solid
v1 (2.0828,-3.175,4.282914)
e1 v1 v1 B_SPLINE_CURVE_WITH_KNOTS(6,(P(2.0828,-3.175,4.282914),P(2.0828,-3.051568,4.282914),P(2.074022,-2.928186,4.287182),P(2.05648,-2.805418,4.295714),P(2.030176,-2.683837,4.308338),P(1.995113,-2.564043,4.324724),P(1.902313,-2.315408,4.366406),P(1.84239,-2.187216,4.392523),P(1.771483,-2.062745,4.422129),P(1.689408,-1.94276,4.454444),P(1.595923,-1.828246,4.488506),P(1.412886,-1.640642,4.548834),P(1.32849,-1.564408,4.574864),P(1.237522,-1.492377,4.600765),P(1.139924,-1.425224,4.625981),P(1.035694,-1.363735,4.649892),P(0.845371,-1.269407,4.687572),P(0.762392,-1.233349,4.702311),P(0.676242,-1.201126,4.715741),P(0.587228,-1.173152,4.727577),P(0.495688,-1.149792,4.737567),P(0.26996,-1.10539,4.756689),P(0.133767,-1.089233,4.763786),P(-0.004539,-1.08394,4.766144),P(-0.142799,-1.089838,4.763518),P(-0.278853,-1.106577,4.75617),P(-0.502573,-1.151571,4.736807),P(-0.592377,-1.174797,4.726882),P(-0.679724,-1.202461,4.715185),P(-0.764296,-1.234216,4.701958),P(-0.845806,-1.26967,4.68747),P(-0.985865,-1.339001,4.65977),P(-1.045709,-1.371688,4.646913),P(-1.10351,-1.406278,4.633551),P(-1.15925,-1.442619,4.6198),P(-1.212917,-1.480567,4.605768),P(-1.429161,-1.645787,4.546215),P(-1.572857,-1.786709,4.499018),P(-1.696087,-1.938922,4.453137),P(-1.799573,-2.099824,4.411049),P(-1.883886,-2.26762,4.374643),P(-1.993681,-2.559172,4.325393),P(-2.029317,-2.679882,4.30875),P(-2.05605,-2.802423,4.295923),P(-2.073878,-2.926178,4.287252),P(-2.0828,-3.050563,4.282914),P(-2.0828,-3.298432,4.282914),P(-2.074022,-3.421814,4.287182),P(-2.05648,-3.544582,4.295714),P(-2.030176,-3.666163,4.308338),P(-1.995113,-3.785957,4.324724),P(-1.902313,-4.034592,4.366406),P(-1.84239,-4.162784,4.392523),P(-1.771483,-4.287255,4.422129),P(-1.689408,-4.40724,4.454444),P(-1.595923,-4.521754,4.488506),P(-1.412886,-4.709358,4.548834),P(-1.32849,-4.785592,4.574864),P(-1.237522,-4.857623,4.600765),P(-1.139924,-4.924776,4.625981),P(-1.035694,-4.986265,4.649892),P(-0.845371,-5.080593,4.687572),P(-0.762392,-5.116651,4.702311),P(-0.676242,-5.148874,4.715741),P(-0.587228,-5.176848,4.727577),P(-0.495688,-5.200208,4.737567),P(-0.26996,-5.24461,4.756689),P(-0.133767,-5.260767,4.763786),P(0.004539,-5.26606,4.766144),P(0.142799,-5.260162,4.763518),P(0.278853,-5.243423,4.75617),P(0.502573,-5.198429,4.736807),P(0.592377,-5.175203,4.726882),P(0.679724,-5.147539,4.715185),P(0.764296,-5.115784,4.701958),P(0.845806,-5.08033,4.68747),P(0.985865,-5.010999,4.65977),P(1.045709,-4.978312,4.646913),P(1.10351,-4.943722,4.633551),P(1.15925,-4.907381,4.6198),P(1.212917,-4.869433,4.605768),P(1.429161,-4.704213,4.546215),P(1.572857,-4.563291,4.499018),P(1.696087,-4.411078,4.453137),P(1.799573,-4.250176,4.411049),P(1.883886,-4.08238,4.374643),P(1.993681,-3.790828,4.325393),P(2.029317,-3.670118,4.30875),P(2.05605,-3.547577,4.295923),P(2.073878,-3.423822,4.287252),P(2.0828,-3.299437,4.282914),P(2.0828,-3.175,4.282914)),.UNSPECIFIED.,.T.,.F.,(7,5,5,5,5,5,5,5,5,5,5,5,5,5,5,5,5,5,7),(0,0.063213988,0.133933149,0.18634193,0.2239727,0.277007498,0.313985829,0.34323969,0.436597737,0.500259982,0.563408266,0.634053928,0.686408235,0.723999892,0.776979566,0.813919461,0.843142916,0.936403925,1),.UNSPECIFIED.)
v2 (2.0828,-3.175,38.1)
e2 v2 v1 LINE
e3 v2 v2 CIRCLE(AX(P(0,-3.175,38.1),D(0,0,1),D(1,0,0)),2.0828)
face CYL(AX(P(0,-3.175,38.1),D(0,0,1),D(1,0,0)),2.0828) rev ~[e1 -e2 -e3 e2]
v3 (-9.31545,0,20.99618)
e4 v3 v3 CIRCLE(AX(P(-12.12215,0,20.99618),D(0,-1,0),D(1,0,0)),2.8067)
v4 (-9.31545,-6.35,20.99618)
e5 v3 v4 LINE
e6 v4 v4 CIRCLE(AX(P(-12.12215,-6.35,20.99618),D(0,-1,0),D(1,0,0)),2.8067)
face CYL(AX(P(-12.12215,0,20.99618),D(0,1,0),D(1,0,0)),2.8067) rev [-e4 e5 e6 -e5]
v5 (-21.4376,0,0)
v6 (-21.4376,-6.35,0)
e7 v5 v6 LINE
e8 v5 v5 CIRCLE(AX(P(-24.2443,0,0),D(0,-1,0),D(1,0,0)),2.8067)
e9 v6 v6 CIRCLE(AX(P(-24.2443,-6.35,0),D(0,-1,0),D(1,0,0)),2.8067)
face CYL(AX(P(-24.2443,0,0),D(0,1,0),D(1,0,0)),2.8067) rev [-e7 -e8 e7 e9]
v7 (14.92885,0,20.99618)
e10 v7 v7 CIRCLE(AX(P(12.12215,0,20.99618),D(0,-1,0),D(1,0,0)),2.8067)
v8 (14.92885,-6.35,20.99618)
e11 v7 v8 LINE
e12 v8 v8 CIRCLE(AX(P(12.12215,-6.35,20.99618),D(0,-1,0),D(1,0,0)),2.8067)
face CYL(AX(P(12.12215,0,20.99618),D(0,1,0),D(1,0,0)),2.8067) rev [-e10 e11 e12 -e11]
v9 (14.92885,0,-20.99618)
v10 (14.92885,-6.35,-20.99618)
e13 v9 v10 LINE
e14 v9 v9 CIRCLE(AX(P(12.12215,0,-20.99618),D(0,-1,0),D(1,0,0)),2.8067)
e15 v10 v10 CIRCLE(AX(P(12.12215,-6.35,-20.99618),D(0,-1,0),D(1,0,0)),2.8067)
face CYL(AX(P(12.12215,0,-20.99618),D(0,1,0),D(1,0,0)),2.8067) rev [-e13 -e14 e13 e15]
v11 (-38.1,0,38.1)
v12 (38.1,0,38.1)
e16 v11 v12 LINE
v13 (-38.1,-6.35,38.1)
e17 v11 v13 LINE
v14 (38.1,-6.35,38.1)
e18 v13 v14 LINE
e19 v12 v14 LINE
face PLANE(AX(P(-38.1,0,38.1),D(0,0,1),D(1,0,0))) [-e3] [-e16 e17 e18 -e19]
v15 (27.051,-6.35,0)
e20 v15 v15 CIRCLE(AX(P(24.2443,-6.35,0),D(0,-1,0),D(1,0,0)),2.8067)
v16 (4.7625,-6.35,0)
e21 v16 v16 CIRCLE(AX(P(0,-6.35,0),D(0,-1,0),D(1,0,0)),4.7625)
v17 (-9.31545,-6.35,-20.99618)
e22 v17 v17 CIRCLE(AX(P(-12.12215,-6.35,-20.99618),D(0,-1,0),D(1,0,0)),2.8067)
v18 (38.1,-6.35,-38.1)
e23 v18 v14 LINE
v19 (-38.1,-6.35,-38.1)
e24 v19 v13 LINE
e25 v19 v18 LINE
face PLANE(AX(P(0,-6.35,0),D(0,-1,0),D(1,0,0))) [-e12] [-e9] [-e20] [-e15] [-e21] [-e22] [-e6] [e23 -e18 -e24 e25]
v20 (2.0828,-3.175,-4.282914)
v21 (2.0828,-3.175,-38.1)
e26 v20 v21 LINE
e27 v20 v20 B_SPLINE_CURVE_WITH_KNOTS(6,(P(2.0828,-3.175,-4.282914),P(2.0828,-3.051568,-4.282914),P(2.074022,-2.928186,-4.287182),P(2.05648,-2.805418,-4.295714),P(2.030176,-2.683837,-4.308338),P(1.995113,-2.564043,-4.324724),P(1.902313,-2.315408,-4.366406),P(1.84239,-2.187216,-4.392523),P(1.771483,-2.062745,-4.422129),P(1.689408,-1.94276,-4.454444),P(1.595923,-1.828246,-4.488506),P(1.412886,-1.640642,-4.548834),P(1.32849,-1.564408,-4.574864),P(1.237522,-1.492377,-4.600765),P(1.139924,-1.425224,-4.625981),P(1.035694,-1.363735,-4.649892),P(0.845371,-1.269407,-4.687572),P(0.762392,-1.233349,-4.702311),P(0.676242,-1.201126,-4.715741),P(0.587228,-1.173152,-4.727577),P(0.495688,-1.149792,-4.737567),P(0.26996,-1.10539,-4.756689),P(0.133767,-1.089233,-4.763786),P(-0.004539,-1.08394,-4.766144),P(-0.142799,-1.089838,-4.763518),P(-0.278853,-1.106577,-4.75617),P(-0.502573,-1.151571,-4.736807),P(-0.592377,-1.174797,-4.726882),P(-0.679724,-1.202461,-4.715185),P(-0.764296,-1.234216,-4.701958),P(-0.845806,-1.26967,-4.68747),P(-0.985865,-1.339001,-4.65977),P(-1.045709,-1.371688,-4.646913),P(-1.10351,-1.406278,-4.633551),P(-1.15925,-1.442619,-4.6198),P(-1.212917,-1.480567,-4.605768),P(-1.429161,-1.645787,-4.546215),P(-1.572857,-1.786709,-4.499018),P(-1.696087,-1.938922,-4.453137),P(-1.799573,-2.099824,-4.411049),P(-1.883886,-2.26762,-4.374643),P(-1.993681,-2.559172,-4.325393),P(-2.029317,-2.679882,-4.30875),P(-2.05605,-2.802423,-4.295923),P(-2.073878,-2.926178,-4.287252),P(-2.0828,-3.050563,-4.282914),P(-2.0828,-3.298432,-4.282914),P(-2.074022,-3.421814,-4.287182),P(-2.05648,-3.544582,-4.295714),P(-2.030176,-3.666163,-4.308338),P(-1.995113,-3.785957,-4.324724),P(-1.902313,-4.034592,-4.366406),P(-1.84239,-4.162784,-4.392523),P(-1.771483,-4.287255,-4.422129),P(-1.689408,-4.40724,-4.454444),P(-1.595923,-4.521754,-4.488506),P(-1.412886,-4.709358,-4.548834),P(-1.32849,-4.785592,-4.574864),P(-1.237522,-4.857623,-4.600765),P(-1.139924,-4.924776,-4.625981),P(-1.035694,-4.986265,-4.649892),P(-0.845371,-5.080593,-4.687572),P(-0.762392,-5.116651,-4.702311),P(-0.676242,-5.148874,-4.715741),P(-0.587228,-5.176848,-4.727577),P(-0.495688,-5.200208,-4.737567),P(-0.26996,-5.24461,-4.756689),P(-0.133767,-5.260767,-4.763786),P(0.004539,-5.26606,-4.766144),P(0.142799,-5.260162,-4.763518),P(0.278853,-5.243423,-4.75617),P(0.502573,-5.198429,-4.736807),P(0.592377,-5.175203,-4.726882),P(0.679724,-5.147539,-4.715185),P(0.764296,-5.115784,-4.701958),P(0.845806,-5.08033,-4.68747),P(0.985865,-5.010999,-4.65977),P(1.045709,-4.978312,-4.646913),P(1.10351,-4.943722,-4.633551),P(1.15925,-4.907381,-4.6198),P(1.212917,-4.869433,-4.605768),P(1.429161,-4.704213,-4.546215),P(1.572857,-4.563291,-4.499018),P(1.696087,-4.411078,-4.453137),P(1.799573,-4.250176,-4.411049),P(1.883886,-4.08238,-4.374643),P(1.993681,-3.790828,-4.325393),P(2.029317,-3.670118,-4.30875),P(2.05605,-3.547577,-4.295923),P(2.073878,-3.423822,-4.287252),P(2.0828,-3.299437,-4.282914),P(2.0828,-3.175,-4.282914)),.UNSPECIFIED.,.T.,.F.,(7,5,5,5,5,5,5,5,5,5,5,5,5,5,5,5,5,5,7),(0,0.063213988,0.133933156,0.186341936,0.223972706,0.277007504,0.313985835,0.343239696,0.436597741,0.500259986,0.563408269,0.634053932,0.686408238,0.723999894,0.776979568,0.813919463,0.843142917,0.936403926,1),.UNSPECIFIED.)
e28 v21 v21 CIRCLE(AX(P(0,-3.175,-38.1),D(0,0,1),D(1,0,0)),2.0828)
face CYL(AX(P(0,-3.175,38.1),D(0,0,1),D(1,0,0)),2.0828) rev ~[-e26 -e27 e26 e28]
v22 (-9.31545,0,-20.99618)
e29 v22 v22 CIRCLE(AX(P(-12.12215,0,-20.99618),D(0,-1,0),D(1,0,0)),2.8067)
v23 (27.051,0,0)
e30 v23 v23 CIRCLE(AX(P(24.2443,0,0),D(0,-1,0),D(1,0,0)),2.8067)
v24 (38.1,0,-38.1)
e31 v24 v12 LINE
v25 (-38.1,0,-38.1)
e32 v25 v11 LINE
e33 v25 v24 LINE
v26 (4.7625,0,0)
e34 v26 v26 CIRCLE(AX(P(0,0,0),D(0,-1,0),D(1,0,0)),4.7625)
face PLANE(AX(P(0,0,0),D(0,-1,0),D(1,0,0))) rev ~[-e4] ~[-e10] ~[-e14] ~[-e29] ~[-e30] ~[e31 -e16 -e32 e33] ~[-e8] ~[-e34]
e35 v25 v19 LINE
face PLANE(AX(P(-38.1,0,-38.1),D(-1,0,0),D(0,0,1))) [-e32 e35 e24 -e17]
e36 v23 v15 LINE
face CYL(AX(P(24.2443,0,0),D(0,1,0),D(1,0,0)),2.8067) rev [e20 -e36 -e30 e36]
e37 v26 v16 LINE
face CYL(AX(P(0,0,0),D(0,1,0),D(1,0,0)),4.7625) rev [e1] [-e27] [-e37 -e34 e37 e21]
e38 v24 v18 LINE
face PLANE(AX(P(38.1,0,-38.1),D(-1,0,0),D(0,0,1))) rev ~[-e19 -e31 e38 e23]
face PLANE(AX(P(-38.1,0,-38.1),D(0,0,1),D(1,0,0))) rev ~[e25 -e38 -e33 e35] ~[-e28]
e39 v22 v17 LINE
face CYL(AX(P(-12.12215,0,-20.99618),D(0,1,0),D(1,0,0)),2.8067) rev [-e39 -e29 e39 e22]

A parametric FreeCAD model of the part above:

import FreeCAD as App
import Part
import Sketcher
Q = App.Units.Quantity


def add_polygon(sketch, points):
    """Adds a closed chain of lines whose ends are joined by coincident constraints."""
    first, n = sketch.GeometryCount, len(points)
    for a, b in zip(points, points[1:] + points[:1]):
        sketch.addGeometry(Part.LineSegment(App.Vector(*a, 0), App.Vector(*b, 0)), False)
    for i in range(n):
        sketch.addConstraint(Sketcher.Constraint("Coincident", first + i, 2, first + (i + 1) % n, 1))

doc = App.newDocument("Part")
params = doc.addObject("Spreadsheet::Sheet", "Params")
for row, (alias, value) in enumerate([
    ("sketch1_width", "3 in"),
    ("sketch1_diameter", "0.221 in"),
    ("sketch1_diameter2", "0.375 in"),
    ("pad1_length", "0.25 in"),
    ("sketch2_diameter", "0.164 in"),
], start=1):
    params.set(f"A{row}", alias)
    params.set(f"B{row}", "=" + value)
    params.setAlias(f"B{row}", alias)

body = doc.addObject("PartDesign::Body", "Body")

# Sketch on XZ plane
sketch1 = body.newObject("Sketcher::SketchObject", "Sketch")
sketch1.AttachmentSupport = (doc.getObject("XZ_Plane"), [""])
sketch1.MapMode = "FlatFace"
add_polygon(sketch1, [(-38.1, 38.1), (-38.1, -38.1), (38.1, -38.1), (38.1, 38.1)])  # lines 0-3
sketch1.addGeometry(Part.Circle(App.Vector(-12.12215, -20.99618, 0), App.Vector(0, 0, 1), 2.8067), False)  # 4
sketch1.addGeometry(Part.Circle(App.Vector(12.12215, -20.99618, 0), App.Vector(0, 0, 1), 2.8067), False)  # 5
sketch1.addGeometry(Part.Circle(App.Vector(-24.2443, 0, 0), App.Vector(0, 0, 1), 2.8067), False)  # 6
sketch1.addGeometry(Part.Circle(App.Vector(-12.12215, 20.99618, 0), App.Vector(0, 0, 1), 2.8067), False)  # 7
sketch1.addGeometry(Part.Circle(App.Vector(0, 0, 0), App.Vector(0, 0, 1), 4.7625), False)  # 8
sketch1.addGeometry(Part.Circle(App.Vector(24.2443, 0, 0), App.Vector(0, 0, 1), 2.8067), False)  # 9
sketch1.addGeometry(Part.Circle(App.Vector(12.12215, 20.99618, 0), App.Vector(0, 0, 1), 2.8067), False)  # 10
sketch1.addConstraint(Sketcher.Constraint("Vertical", 0))
sketch1.addConstraint(Sketcher.Constraint("Horizontal", 1))
sketch1.addConstraint(Sketcher.Constraint("Vertical", 2))
sketch1.addConstraint(Sketcher.Constraint("Horizontal", 3))
sketch1.addConstraint(Sketcher.Constraint("Coincident", 8, 3, -1, 1))
sketch1.addConstraint(Sketcher.Constraint("Equal", 4, 5))
sketch1.addConstraint(Sketcher.Constraint("Equal", 5, 6))
sketch1.addConstraint(Sketcher.Constraint("Equal", 6, 7))
sketch1.addConstraint(Sketcher.Constraint("Equal", 7, 9))
sketch1.addConstraint(Sketcher.Constraint("Equal", 9, 10))
sketch1.addConstraint(Sketcher.Constraint("Symmetric", 5, 3, 7, 3, -1, 1))
sketch1.addConstraint(Sketcher.Constraint("Symmetric", 6, 3, 9, 3, -1, 1))
sketch1.addConstraint(Sketcher.Constraint("Symmetric", 4, 3, 10, 3, -1, 1))
sketch1.addConstraint(Sketcher.Constraint("Symmetric", 0, 2, 2, 2, -1, 1))
sketch1.addConstraint(Sketcher.Constraint("Symmetric", 4, 3, 5, 3, -2))
sketch1.addConstraint(Sketcher.Constraint("PointOnObject", 6, 3, -1))
sketch1.addConstraint(Sketcher.Constraint("Equal", 3, 0))
sketch1.addConstraint(Sketcher.Constraint("DistanceX", 1, 1, 1, 2, Q("3 in")))
sketch1.addConstraint(Sketcher.Constraint("Diameter", 4, Q("0.221 in")))
sketch1.addConstraint(Sketcher.Constraint("Diameter", 8, Q("0.375 in")))
sketch1.addConstraint(Sketcher.Constraint("DistanceX", 6, 3, 9, 3, Q("1.909 in")))
sketch1.addConstraint(Sketcher.Constraint("DistanceX", 4, 3, 5, 3, Q("0.9545 in")))
sketch1.addConstraint(Sketcher.Constraint("DistanceY", 4, 3, -1, 1, Q("20.99618 mm")))
sketch1.setExpression("Constraints[21]", "Params.sketch1_width")
sketch1.setExpression("Constraints[22]", "Params.sketch1_diameter")
sketch1.setExpression("Constraints[23]", "Params.sketch1_diameter2")
pad1 = body.newObject("PartDesign::Pad", "Pad")
pad1.Profile = sketch1
pad1.setExpression("Length", "Params.pad1_length")

# Sketch on XY plane
sketch2 = body.newObject("Sketcher::SketchObject", "Sketch001")
sketch2.AttachmentSupport = (doc.getObject("XY_Plane"), [""])
sketch2.MapMode = "FlatFace"
sketch2.AttachmentOffset = App.Placement(App.Vector(0, 0, 1.5 * 25.4), App.Rotation())
sketch2.addGeometry(Part.Circle(App.Vector(0, -3.175, 0), App.Vector(0, 0, 1), 2.0828), False)
sketch2.addConstraint(Sketcher.Constraint("PointOnObject", 0, 3, -2))
sketch2.addConstraint(Sketcher.Constraint("Diameter", 0, Q("0.164 in")))
sketch2.addConstraint(Sketcher.Constraint("DistanceY", 0, 3, -1, 1, Q("0.125 in")))
sketch2.setExpression("Constraints[1]", "Params.sketch2_diameter")
pocket1 = body.newObject("PartDesign::Pocket", "Pocket")
pocket1.Profile = sketch2
pocket1.Type = "ThroughAll"

doc.recompute()
